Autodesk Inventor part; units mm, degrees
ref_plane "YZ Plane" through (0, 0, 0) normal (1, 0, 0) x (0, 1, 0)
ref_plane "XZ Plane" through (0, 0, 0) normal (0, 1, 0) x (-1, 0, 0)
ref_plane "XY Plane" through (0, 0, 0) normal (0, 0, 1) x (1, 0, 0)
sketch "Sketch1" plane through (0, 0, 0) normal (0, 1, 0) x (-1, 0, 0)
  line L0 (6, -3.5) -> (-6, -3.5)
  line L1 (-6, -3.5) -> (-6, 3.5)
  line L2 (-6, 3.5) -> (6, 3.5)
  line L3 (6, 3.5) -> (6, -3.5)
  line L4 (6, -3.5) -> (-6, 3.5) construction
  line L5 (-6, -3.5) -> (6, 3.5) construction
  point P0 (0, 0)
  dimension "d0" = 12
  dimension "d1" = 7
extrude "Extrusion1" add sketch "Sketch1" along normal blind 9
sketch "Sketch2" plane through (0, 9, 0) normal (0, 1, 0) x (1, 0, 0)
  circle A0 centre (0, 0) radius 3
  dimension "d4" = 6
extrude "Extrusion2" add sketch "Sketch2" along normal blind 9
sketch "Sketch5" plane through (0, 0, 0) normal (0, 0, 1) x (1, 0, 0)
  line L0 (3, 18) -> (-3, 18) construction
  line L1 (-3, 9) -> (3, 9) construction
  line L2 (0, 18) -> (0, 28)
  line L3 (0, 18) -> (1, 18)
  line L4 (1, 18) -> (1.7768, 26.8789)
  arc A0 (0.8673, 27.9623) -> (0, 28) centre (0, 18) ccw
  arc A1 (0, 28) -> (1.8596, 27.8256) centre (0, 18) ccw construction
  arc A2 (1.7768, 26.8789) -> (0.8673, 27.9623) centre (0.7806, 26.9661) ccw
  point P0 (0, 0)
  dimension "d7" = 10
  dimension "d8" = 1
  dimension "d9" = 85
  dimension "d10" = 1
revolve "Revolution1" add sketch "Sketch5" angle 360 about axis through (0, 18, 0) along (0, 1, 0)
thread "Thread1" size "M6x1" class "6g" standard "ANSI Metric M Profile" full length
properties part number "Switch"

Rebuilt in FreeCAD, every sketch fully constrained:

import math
import FreeCAD as App
import Part
import Sketcher
from FreeCAD import Vector
Q = App.Units.Quantity

doc = App.newDocument("Part")
body = doc.addObject("PartDesign::Body", "Body")

sketch1 = doc.addObject("Sketcher::SketchObject", "Sketch")
body.addObject(sketch1)
sketch1.AttachmentSupport = (doc.XZ_Plane, [""])
sketch1.MapMode = "FlatFace"
sketch1.addGeometry([
    Part.LineSegment(Vector(6, -3.5, 0), Vector(-6, -3.5, 0)),
    Part.LineSegment(Vector(-6, -3.5, 0), Vector(-6, 3.5, 0)),
    Part.LineSegment(Vector(-6, 3.5, 0), Vector(6, 3.5, 0)),
    Part.LineSegment(Vector(6, 3.5, 0), Vector(6, -3.5, 0)),
], False)
sketch1.addConstraint([
    Sketcher.Constraint("Coincident", 0, 2, 1, 1),
    Sketcher.Constraint("Coincident", 1, 2, 2, 1),
    Sketcher.Constraint("Coincident", 2, 2, 3, 1),
    Sketcher.Constraint("Coincident", 3, 2, 0, 1),
    Sketcher.Constraint("Horizontal", 0),
    Sketcher.Constraint("Vertical", 1),
    Sketcher.Constraint("Horizontal", 2),
    Sketcher.Constraint("Vertical", 3),
    Sketcher.Constraint("Symmetric", 0, 2, 2, 2, -1, 1),
    Sketcher.Constraint("DistanceX", 0, 2, 0, 1, 12.0),
    Sketcher.Constraint("DistanceY", 1, 1, 1, 2, 7.0),
])
pad1 = doc.addObject("PartDesign::Pad", "Pad")
body.addObject(pad1)
pad1.Profile = sketch1
pad1.Length = 9
pad1.Reversed = True

sketch2 = doc.addObject("Sketcher::SketchObject", "Sketch001")
body.addObject(sketch2)
sketch2.AttachmentSupport = (doc.XZ_Plane, [""])
sketch2.MapMode = "FlatFace"
sketch2.AttachmentOffset = App.Placement(Vector(0, 0, -9), App.Rotation())
sketch2.addGeometry(Part.Circle(Vector(0, 0, 0), Vector(0, 0, 1), 3), False)
sketch2.addConstraint([
    Sketcher.Constraint("Coincident", 0, 3, -1, 1),
    Sketcher.Constraint("Diameter", 0, 6.0),
])
pad2 = doc.addObject("PartDesign::Pad", "Pad001")
body.addObject(pad2)
pad2.Profile = sketch2
pad2.Length = 9
pad2.Reversed = True

sketch3 = doc.addObject("Sketcher::SketchObject", "Sketch002")
body.addObject(sketch3)
sketch3.AttachmentSupport = (doc.XY_Plane, [""])
sketch3.MapMode = "FlatFace"
sketch3.addGeometry([
    Part.LineSegment(Vector(0, 28, 0), Vector(0, 18, 0)),
    Part.LineSegment(Vector(0, 18, 0), Vector(1, 18, 0)),
    Part.LineSegment(Vector(1, 18, 0), Vector(1.7768, 26.8789, 0)),
    Part.ArcOfCircle(Part.Circle(Vector(0.7806, 26.9661, 0), Vector(0, 0, 1), 1.000009), math.radians(-5.0025), math.radians(85.02604)),
    Part.ArcOfCircle(Part.Circle(Vector(-0.000639, 17.99021, 0), Vector(0, 0, 1), 10.00979), math.radians(85.025696), math.radians(89.996345)),
], False)
sketch3.addConstraint([
    Sketcher.Constraint("Coincident", 0, 2, 1, 1),
    Sketcher.Constraint("Coincident", 1, 2, 2, 1),
    Sketcher.Constraint("Tangent", 2, 2, 3, 1),
    Sketcher.Constraint("Tangent", 3, 2, 4, 1),
    Sketcher.Constraint("Coincident", 4, 2, 0, 1),
    Sketcher.Constraint("Vertical", 0),
    Sketcher.Constraint("Horizontal", 1),
    Sketcher.Constraint("PointOnObject", 0, 2, -2),
    Sketcher.Constraint("Radius", 3, 1.0),
    Sketcher.Constraint("DistanceX", 1, 1, 1, 2, 1.0),
    Sketcher.Constraint("DistanceY", 0, 2, 0, 1, 10.0),
    Sketcher.Constraint("Angle", 2, Q("85 deg")),
    Sketcher.Constraint("DistanceY", -1, 1, 0, 2, 18.0),
    Sketcher.Constraint("Radius", 4, 10.0098),
    Sketcher.Constraint("DistanceY", -1, 1, 3, 3, 26.966),
])
revolution = doc.addObject("PartDesign::Revolution", "Revolution")
body.addObject(revolution)
revolution.Profile = sketch3
revolution.ReferenceAxis = (sketch3, ["V_Axis"])
revolution.Angle = 360

doc.recompute()
